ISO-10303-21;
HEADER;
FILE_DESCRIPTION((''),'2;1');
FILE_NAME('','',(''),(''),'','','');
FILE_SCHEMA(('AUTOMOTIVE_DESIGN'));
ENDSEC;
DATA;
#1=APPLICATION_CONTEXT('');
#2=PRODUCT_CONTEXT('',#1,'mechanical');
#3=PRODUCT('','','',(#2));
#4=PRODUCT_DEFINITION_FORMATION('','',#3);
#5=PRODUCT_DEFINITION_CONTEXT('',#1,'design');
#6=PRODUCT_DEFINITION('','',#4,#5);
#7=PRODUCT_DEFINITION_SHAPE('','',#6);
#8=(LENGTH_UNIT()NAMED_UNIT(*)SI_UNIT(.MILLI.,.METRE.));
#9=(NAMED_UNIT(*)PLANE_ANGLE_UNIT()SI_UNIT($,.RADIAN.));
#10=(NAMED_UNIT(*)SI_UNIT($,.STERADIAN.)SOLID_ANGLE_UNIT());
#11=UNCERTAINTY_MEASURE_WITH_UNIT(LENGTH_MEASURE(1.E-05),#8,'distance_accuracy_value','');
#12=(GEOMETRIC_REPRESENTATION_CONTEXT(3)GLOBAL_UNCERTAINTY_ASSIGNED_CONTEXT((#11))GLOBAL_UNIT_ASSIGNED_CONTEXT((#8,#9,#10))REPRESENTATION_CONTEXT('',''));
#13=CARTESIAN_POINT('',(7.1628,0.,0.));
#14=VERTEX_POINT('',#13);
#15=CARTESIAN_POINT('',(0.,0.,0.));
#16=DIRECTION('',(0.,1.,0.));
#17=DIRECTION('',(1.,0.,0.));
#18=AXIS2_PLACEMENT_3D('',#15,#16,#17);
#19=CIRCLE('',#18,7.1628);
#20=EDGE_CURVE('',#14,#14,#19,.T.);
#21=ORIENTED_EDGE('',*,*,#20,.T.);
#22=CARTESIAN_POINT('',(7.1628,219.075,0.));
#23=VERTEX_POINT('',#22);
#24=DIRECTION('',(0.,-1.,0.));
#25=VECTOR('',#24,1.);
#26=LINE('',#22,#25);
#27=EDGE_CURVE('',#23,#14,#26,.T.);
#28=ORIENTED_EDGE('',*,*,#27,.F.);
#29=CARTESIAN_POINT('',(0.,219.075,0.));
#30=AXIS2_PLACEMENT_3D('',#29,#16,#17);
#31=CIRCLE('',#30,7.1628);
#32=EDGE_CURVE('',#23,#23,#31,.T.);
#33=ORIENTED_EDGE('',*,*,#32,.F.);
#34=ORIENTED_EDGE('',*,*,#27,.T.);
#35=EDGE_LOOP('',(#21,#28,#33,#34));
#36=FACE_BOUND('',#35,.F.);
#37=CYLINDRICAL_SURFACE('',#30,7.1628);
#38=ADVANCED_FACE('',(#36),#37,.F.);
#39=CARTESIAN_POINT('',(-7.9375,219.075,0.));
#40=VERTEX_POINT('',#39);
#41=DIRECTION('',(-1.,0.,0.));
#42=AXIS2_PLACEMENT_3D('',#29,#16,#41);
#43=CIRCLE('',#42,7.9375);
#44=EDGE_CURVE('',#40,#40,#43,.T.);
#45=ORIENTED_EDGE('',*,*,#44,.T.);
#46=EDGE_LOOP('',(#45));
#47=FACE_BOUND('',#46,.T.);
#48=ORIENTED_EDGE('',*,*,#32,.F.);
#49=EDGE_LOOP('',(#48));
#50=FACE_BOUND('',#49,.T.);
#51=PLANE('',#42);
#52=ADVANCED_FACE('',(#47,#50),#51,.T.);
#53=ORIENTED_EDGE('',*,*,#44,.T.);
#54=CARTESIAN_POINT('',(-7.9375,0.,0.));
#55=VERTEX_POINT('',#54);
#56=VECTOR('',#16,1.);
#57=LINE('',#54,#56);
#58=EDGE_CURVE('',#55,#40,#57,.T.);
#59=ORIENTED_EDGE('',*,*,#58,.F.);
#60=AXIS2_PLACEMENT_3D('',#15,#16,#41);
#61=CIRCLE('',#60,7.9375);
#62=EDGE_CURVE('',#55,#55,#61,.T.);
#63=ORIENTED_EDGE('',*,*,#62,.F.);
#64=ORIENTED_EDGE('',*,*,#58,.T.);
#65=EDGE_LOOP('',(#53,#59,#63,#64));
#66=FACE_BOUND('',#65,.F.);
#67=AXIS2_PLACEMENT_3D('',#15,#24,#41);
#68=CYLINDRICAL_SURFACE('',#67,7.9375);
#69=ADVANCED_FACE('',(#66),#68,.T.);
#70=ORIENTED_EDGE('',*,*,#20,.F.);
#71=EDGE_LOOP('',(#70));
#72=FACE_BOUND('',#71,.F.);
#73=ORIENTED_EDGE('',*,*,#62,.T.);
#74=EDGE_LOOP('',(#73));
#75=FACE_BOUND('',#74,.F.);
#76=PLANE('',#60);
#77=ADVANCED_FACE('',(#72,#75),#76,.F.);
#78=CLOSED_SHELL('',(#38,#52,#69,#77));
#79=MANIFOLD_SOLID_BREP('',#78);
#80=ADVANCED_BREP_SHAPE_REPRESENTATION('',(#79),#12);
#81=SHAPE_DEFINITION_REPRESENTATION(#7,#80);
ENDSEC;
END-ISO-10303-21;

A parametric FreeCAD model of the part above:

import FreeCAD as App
import Part
import Sketcher
from FreeCAD import Vector
Q = App.Units.Quantity

doc = App.newDocument("Part")
params = doc.addObject("Spreadsheet::Sheet", "Params")
for row, (alias, value) in enumerate([
    ("sketch1_diameter", "0.625 in"),
    ("pad1_length", "8.625 in"),
    ("sketch2_diameter", "0.564 in"),
    ("pocket1_length", "10.625 in"),
], start=1):
    params.set(f"A{row}", alias)
    params.set(f"B{row}", "=" + value)
    params.setAlias(f"B{row}", alias)

body = doc.addObject("PartDesign::Body", "Body")

# Sketch on XZ plane
sketch1 = doc.addObject("Sketcher::SketchObject", "Sketch")
body.addObject(sketch1)
sketch1.AttachmentSupport = (doc.XZ_Plane, [""])
sketch1.MapMode = "FlatFace"
sketch1.addGeometry(Part.Circle(Vector(0, 0, 0), Vector(0, 0, 1), 8), False)
sketch1.addConstraint([
    Sketcher.Constraint("Coincident", 0, 3, -1, 1),
    Sketcher.Constraint("Diameter", 0, Q("0.625 in")),
])
sketch1.setExpression("Constraints[1]", "Params.sketch1_diameter")
pad1 = doc.addObject("PartDesign::Pad", "Pad")
body.addObject(pad1)
pad1.Profile = sketch1
pad1.setExpression("Length", "Params.pad1_length")
pad1.Reversed = True

# Sketch on XZ plane
sketch2 = doc.addObject("Sketcher::SketchObject", "Sketch001")
body.addObject(sketch2)
sketch2.AttachmentSupport = (doc.XZ_Plane, [""])
sketch2.MapMode = "FlatFace"
sketch2.AttachmentOffset = App.Placement(Vector(0, 0, -8.625 * 25.4), App.Rotation())
sketch2.addGeometry(Part.Circle(Vector(0, 0, 0), Vector(0, 0, 1), 7), False)
sketch2.addConstraint([
    Sketcher.Constraint("Coincident", 0, 3, -1, 1),
    Sketcher.Constraint("Diameter", 0, Q("0.564 in")),
])
sketch2.setExpression("Constraints[1]", "Params.sketch2_diameter")
pocket1 = doc.addObject("PartDesign::Pocket", "Pocket")
body.addObject(pocket1)
pocket1.Profile = sketch2
pocket1.setExpression("Length", "Params.pocket1_length")
pocket1.Reversed = True

doc.recompute()
